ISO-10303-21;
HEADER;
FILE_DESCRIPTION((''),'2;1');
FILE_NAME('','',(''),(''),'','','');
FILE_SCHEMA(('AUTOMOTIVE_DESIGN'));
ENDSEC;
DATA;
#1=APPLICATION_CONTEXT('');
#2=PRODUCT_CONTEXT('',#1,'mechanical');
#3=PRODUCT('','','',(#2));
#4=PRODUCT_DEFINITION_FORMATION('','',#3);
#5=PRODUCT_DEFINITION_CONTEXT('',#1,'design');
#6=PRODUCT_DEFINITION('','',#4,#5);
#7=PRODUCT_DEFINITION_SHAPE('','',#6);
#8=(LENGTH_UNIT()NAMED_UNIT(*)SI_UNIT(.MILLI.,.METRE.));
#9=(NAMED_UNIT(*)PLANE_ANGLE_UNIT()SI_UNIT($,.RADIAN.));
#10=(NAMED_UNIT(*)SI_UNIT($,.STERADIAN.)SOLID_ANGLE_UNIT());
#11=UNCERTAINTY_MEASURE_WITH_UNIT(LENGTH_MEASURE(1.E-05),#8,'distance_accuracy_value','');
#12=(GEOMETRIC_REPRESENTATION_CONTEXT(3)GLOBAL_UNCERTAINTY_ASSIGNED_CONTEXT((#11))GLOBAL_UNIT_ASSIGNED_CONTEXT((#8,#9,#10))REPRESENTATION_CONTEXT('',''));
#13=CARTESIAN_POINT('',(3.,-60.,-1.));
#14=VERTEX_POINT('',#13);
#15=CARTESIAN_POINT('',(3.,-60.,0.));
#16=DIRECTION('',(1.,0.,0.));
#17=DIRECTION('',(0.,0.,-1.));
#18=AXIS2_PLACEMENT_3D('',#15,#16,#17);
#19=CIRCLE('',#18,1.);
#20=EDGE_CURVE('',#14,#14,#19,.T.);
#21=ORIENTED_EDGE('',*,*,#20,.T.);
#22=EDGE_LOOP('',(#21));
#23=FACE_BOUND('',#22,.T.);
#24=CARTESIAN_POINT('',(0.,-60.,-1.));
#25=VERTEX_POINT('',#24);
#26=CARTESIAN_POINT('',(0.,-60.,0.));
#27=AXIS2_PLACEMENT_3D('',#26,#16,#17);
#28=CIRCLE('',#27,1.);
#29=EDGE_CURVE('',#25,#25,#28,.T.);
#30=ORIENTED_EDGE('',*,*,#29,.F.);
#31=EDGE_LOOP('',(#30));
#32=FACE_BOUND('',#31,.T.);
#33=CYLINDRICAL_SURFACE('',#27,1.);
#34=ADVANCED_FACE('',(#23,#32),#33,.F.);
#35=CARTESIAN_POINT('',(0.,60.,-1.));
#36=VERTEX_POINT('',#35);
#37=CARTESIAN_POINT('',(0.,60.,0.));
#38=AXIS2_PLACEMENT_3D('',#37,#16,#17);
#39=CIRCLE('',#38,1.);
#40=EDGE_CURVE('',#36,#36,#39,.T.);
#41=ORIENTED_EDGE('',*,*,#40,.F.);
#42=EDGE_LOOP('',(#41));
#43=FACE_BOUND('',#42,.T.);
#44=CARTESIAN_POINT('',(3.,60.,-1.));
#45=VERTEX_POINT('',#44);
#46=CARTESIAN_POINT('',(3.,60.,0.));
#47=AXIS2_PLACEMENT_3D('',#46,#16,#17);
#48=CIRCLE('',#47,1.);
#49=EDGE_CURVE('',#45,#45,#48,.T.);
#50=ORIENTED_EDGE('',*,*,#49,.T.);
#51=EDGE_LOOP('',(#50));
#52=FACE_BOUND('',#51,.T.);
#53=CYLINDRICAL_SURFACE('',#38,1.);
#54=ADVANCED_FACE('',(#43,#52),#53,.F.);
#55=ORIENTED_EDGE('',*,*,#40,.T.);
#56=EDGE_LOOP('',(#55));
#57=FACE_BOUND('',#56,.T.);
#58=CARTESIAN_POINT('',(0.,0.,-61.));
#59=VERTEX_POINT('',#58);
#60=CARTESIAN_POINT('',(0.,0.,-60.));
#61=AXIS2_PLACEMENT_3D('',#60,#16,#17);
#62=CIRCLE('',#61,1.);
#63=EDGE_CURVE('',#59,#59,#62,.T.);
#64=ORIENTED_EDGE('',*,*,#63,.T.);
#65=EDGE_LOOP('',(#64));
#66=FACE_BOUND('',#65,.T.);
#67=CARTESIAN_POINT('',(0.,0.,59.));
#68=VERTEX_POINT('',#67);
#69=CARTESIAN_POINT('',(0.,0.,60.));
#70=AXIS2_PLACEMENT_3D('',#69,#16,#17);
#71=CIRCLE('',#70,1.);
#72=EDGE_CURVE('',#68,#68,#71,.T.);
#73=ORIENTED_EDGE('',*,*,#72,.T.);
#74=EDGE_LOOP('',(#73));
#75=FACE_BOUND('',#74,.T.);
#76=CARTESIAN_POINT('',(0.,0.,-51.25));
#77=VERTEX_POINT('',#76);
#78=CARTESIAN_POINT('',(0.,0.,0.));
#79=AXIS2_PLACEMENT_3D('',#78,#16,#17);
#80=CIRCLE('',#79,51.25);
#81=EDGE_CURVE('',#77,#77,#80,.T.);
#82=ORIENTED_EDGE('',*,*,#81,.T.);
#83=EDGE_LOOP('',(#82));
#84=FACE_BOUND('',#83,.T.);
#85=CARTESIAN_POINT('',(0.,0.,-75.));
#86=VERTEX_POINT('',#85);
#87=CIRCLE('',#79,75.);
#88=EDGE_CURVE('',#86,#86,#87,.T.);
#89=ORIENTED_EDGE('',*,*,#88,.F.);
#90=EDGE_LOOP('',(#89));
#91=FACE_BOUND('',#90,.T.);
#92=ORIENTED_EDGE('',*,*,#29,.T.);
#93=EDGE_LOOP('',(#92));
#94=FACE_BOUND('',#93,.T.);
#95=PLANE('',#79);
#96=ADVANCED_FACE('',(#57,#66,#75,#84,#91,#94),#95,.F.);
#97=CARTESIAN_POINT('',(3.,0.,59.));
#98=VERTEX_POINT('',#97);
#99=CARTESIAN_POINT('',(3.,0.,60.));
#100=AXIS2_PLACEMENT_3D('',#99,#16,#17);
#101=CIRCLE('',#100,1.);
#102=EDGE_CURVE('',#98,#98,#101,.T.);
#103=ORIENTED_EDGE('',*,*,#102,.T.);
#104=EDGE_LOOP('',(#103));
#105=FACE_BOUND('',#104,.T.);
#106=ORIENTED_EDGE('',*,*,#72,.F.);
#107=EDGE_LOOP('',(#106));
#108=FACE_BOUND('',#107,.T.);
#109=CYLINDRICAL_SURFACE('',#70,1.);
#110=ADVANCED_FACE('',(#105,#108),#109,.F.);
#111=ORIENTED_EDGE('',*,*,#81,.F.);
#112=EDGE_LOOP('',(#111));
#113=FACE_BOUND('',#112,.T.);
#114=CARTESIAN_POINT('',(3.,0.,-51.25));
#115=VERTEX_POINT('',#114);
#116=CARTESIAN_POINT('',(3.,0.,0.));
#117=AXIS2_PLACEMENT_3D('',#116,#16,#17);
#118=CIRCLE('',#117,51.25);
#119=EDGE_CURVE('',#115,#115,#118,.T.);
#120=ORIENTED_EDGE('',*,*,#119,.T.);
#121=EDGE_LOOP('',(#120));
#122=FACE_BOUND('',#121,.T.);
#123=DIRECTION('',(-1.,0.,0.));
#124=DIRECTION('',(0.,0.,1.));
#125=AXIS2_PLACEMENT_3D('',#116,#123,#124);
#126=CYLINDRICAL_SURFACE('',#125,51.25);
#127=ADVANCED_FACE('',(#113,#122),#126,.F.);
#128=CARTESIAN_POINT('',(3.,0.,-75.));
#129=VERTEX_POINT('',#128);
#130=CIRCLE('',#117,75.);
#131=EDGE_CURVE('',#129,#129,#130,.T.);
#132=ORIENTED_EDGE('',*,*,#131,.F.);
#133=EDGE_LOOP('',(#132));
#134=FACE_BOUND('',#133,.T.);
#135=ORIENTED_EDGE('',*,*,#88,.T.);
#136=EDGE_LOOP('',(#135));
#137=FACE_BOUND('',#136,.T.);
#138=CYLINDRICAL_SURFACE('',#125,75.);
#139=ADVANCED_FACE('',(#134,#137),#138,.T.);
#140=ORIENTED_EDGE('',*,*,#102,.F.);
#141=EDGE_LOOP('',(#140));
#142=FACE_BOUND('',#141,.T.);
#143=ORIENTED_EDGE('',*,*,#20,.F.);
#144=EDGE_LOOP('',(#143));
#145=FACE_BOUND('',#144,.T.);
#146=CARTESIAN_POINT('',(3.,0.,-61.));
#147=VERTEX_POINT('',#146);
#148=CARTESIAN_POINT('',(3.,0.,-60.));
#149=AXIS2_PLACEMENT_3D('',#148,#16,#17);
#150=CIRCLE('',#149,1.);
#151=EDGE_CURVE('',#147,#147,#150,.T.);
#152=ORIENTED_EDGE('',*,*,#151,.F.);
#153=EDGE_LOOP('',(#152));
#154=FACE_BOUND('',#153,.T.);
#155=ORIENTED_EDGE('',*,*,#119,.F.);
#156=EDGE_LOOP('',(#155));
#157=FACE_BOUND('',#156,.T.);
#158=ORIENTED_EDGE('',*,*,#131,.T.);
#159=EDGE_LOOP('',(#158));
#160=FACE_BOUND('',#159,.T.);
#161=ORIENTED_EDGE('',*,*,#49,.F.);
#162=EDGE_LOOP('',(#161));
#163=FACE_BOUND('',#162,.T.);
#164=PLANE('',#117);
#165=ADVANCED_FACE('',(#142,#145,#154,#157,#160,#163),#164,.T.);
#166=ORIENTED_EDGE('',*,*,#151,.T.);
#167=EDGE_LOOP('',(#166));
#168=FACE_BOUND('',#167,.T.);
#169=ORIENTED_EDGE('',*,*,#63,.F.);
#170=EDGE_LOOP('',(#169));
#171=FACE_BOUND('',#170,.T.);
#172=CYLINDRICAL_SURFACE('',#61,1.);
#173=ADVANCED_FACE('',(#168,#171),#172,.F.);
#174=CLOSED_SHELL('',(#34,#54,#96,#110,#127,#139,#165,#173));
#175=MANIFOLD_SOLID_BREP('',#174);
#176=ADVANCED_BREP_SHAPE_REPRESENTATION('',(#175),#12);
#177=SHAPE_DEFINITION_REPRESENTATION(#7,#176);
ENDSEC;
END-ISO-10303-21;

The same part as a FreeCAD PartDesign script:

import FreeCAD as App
import Part
import Sketcher
Q = App.Units.Quantity

doc = App.newDocument("Part")
body = doc.addObject("PartDesign::Body", "Body")

sketch1 = body.newObject("Sketcher::SketchObject", "Sketch")
sketch1.AttachmentSupport = (doc.getObject("YZ_Plane"), [""])
sketch1.MapMode = "FlatFace"
sketch1.addGeometry([
    Part.Circle(App.Vector(0, 0, 0), App.Vector(0, 0, 1), 75),
    Part.Circle(App.Vector(0, 0, 0), App.Vector(0, 0, 1), 51.25),
], False)
sketch1.addConstraint([
    Sketcher.Constraint("Coincident", 0, 3, -1, 1),
    Sketcher.Constraint("Coincident", 1, 3, -1, 1),
    Sketcher.Constraint("Diameter", 0, Q("150 mm")),
    Sketcher.Constraint("Diameter", 1, Q("102.5 mm")),
])
pad1 = body.newObject("PartDesign::Pad", "Pad")
pad1.Profile = sketch1
pad1.Length = 3

sketch2 = body.newObject("Sketcher::SketchObject", "Sketch001")
sketch2.AttachmentSupport = (doc.getObject("YZ_Plane"), [""])
sketch2.MapMode = "FlatFace"
sketch2.AttachmentOffset = App.Placement(App.Vector(0, 0, 3), App.Rotation())
sketch2.addGeometry([
    Part.Circle(App.Vector(60, 0, 0), App.Vector(0, 0, 1), 1),
    Part.Circle(App.Vector(0, -60, 0), App.Vector(0, 0, 1), 1),
    Part.Circle(App.Vector(-60, 0, 0), App.Vector(0, 0, 1), 1),
    Part.Circle(App.Vector(0, 60, 0), App.Vector(0, 0, 1), 1),
], False)
sketch2.addConstraint([
    Sketcher.Constraint("Equal", 0, 1),
    Sketcher.Constraint("Equal", 1, 2),
    Sketcher.Constraint("Equal", 2, 3),
    Sketcher.Constraint("Symmetric", 0, 3, 2, 3, -1, 1),
    Sketcher.Constraint("Symmetric", 1, 3, 3, 3, -1, 1),
    Sketcher.Constraint("PointOnObject", 0, 3, -1),
    Sketcher.Constraint("PointOnObject", 1, 3, -2),
    Sketcher.Constraint("Diameter", 0, Q("2 mm")),
    Sketcher.Constraint("DistanceX", -1, 1, 0, 3, Q("60 mm")),
    Sketcher.Constraint("DistanceY", 1, 3, -1, 1, Q("60 mm")),
])
pocket1 = body.newObject("PartDesign::Pocket", "Pocket")
pocket1.Profile = sketch2
pocket1.Type = "ThroughAll"

doc.recompute()
